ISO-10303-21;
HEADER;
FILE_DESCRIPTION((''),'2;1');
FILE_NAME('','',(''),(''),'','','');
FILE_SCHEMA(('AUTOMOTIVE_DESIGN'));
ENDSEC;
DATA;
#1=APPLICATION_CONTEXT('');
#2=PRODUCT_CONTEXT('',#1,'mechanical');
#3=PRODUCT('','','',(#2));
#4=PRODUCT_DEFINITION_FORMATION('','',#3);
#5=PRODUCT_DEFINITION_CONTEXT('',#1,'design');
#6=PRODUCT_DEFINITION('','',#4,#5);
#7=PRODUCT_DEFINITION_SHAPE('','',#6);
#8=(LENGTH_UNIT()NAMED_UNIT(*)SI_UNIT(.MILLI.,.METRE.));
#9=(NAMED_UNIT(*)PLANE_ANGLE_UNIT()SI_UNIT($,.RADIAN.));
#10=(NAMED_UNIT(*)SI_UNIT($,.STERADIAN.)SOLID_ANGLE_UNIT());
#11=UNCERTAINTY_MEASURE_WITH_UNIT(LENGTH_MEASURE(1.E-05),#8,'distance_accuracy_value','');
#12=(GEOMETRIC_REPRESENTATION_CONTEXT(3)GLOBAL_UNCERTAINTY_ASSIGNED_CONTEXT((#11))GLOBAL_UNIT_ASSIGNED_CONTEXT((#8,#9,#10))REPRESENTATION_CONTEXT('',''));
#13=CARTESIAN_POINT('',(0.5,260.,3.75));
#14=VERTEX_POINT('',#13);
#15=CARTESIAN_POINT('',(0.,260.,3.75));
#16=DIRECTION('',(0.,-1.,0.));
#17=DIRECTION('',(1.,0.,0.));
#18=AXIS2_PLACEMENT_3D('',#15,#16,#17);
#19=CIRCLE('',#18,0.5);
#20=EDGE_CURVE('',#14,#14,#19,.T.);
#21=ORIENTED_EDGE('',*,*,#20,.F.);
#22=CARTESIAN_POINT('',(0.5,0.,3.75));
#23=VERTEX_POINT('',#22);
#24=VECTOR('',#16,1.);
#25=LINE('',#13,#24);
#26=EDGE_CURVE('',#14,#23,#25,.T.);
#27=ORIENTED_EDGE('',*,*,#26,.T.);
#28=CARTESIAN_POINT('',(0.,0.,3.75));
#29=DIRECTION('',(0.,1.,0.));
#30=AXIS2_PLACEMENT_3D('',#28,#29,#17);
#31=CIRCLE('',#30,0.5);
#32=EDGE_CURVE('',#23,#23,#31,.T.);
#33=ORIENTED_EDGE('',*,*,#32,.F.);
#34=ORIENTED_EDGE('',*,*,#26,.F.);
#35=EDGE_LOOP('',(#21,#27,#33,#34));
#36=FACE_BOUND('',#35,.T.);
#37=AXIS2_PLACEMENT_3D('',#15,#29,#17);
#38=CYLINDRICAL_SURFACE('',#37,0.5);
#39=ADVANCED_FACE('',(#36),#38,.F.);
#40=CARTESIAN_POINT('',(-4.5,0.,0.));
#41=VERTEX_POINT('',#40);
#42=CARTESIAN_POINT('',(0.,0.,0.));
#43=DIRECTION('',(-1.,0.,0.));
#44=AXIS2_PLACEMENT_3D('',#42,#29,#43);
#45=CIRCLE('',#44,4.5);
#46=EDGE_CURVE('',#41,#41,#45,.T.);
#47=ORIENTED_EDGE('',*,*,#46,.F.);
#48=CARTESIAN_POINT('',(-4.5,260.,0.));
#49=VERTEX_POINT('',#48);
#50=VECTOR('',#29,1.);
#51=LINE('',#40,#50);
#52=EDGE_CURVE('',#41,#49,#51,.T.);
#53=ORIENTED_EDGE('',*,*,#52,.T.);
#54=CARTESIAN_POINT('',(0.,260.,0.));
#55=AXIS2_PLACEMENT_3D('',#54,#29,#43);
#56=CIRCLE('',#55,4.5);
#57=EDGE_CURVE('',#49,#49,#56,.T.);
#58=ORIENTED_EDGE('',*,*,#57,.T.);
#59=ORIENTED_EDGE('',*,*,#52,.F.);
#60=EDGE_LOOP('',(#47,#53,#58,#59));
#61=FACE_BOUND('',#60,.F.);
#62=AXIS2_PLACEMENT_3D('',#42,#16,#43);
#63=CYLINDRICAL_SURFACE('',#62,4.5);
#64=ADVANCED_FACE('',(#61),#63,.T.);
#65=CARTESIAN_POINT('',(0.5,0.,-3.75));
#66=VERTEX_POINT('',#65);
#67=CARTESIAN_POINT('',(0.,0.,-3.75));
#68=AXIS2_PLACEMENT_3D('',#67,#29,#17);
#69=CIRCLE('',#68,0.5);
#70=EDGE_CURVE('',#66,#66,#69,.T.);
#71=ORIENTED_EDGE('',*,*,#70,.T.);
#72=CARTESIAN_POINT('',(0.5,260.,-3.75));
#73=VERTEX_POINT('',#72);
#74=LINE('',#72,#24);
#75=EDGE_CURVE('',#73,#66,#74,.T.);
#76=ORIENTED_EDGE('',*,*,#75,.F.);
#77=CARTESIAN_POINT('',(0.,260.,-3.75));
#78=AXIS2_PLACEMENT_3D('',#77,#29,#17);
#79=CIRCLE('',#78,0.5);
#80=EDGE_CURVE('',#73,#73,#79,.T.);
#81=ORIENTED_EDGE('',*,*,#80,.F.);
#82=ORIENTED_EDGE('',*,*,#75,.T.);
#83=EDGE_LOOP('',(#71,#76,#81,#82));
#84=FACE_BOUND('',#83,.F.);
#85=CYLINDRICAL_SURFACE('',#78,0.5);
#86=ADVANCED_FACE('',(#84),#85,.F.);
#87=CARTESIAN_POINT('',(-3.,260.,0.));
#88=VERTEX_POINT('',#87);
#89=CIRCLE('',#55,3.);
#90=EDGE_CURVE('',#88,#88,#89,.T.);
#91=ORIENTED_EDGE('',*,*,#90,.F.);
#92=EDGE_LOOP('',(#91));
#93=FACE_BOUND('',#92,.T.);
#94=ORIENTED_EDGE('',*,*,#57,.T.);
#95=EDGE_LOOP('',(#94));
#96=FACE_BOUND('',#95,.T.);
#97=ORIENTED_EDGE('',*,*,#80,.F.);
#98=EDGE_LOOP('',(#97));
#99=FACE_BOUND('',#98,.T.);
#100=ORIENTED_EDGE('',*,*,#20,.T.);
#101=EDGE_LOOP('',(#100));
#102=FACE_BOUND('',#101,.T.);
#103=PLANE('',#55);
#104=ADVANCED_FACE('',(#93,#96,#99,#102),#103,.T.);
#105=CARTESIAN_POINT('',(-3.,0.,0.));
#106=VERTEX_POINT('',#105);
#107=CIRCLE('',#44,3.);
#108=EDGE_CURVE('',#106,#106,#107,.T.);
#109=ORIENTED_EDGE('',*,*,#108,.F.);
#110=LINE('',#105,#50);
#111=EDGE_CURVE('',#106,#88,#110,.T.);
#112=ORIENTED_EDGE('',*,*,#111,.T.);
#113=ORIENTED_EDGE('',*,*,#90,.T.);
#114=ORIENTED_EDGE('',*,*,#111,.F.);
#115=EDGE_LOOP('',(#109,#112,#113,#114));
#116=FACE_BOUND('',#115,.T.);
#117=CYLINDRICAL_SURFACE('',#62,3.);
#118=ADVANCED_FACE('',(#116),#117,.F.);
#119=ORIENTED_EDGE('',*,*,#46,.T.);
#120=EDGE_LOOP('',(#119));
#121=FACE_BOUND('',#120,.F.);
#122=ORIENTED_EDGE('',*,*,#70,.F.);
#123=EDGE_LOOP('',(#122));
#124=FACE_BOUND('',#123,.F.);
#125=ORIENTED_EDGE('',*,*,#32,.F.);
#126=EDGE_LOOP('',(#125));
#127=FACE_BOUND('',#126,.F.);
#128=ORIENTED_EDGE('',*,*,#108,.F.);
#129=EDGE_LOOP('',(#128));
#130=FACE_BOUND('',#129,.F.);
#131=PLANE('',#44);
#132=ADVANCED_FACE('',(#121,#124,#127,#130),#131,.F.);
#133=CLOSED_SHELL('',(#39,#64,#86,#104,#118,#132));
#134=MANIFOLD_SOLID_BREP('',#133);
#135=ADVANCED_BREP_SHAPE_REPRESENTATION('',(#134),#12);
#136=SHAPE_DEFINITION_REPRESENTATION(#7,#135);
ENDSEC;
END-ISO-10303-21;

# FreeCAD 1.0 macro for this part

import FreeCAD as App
import Part
import Sketcher

doc = App.newDocument("Part")
body = doc.addObject("PartDesign::Body", "Body")

sketch1 = body.newObject("Sketcher::SketchObject", "Sketch")
sketch1.AttachmentSupport = (doc.getObject("XZ_Plane"), [""])
sketch1.MapMode = "FlatFace"
sketch1.addGeometry(Part.Circle(App.Vector(0, 0, 0), App.Vector(0, 0, 1), 4.5), False)
sketch1.addGeometry(Part.Circle(App.Vector(0, 0, 0), App.Vector(0, 0, 1), 3), False)
sketch1.addConstraint(Sketcher.Constraint("Coincident", 0, 3, -1, 1))
sketch1.addConstraint(Sketcher.Constraint("Coincident", 1, 3, -1, 1))
sketch1.addConstraint(Sketcher.Constraint("Diameter", 0, 9.0))
sketch1.addConstraint(Sketcher.Constraint("Diameter", 1, 6.0))
pad1 = body.newObject("PartDesign::Pad", "Pad")
pad1.Profile = sketch1
pad1.Length = 260
pad1.Reversed = True

sketch2 = body.newObject("Sketcher::SketchObject", "Sketch001")
sketch2.AttachmentSupport = (doc.getObject("XZ_Plane"), [""])
sketch2.MapMode = "FlatFace"
sketch2.AttachmentOffset = App.Placement(App.Vector(0, 0, -260), App.Rotation())
sketch2.addGeometry(Part.Circle(App.Vector(0, -3.75, 0), App.Vector(0, 0, 1), 0.5), False)
sketch2.addConstraint(Sketcher.Constraint("PointOnObject", 0, 3, -2))
sketch2.addConstraint(Sketcher.Constraint("Diameter", 0, 1.0))
sketch2.addConstraint(Sketcher.Constraint("DistanceY", 0, 3, -1, 1, 3.75))
pocket1 = body.newObject("PartDesign::Pocket", "Pocket")
pocket1.Profile = sketch2
pocket1.Type = "ThroughAll"
pocket1.Reversed = True
doc.recompute()

mirrored = body.newObject("PartDesign::Mirrored", "Mirrored")
mirrored.Originals = [pocket1]
mirrored.MirrorPlane = (doc.getObject("XY_Plane"), [""])
body.Tip = mirrored

doc.recompute()
